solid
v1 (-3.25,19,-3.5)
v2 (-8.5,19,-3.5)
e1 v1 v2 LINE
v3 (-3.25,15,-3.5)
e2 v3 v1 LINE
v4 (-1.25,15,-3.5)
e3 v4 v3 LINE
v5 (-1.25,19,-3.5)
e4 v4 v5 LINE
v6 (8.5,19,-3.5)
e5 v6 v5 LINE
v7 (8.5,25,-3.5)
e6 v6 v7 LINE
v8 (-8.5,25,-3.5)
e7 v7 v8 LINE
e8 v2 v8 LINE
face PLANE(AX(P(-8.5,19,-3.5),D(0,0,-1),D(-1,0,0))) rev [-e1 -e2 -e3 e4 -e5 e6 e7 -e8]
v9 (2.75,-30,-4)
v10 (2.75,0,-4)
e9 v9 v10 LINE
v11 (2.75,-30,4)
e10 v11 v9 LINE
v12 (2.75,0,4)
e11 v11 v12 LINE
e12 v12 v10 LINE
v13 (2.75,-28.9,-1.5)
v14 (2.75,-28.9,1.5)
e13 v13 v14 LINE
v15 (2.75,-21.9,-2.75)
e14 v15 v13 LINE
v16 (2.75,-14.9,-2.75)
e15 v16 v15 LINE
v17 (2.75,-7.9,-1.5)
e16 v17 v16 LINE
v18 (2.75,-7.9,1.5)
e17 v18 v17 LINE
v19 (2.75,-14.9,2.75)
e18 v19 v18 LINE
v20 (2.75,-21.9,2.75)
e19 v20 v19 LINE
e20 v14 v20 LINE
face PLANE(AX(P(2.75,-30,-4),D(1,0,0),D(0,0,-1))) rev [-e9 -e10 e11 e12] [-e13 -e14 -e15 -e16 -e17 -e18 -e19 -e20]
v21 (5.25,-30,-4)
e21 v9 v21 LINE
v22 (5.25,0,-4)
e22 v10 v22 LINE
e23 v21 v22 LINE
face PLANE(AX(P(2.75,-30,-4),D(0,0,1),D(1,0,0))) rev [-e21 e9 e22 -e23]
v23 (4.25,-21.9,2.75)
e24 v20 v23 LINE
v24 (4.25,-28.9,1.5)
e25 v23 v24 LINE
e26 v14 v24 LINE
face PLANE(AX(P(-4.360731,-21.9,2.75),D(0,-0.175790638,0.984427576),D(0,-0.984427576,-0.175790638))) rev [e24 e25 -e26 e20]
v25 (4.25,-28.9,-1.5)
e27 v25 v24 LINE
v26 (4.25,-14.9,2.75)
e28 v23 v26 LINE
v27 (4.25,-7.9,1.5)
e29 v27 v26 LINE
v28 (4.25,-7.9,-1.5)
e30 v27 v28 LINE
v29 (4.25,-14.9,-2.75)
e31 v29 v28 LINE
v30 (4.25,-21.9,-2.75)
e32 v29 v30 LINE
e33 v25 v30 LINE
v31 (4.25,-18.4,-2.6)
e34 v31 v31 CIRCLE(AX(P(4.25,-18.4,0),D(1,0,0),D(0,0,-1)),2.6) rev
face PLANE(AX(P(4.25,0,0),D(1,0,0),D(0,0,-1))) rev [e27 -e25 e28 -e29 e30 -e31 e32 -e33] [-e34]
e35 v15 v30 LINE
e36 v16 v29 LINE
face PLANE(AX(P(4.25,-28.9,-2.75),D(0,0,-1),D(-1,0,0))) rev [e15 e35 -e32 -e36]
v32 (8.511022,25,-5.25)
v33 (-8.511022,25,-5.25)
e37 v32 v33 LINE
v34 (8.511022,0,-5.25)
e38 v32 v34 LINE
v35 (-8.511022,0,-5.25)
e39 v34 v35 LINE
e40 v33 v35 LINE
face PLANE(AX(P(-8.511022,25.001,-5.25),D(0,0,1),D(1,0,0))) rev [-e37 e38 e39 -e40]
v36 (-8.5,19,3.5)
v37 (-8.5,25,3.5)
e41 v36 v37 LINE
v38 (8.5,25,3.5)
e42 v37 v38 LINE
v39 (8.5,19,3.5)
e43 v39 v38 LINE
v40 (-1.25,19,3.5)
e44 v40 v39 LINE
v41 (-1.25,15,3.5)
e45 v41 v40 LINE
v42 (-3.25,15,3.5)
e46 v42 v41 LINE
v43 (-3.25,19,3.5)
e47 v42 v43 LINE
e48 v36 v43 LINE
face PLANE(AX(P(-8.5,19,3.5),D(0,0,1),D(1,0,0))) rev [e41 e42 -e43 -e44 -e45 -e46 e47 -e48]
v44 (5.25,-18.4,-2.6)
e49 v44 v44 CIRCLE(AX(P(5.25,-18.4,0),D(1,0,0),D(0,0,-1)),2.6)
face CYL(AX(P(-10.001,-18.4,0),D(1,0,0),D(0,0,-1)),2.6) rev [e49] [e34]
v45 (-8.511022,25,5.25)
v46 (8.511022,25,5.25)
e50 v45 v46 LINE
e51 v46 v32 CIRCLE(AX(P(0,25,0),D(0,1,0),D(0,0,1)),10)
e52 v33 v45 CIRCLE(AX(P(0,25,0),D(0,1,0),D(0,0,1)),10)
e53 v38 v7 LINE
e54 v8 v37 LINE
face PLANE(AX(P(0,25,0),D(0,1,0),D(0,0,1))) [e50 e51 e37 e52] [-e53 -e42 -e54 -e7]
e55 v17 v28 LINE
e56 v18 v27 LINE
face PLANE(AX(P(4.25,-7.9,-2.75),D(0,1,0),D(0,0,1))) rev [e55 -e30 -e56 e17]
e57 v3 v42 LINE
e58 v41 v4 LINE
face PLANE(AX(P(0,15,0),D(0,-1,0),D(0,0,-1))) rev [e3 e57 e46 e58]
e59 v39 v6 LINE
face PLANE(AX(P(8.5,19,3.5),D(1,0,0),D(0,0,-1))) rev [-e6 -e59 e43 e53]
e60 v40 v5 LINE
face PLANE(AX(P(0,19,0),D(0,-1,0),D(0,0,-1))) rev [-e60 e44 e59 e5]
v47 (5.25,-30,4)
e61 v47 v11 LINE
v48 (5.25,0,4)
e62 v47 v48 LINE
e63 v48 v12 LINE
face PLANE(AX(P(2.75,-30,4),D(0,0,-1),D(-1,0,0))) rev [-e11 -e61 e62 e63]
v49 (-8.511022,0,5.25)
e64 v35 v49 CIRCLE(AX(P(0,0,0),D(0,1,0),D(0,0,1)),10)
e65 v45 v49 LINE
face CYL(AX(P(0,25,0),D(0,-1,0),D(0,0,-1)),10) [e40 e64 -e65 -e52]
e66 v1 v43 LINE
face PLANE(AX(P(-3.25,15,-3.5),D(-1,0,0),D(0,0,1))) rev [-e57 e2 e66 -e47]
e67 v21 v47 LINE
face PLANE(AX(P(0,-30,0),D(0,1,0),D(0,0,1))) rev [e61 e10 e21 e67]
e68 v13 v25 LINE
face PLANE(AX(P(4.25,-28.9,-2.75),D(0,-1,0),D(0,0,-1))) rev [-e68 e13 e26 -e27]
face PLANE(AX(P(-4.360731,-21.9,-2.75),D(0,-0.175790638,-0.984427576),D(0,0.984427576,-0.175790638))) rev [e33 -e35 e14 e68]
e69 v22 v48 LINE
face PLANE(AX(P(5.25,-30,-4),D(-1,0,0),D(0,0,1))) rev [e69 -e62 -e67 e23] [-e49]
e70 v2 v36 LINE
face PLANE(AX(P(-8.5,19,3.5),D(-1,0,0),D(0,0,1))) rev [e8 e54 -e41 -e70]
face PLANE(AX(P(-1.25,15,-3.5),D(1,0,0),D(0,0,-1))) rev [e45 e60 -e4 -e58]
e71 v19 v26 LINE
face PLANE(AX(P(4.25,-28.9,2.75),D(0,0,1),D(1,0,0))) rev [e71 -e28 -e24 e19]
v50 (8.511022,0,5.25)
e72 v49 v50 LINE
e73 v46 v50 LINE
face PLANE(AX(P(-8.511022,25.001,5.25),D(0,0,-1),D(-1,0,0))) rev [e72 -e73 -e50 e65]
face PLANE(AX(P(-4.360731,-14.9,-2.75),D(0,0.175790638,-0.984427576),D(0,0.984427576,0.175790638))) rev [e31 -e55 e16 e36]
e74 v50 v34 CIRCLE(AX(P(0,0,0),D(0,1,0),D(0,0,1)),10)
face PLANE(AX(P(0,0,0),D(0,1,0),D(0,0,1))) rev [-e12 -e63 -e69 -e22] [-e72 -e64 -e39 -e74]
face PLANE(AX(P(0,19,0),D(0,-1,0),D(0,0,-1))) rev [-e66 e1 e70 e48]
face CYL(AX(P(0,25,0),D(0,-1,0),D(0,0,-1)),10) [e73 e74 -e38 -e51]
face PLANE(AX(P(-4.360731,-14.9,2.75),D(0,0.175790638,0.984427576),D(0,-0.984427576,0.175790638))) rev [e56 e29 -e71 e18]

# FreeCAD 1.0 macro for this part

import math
import FreeCAD as App
import Part
import Sketcher
from FreeCAD import Vector
Q = App.Units.Quantity

doc = App.newDocument("Part")
body = doc.addObject("PartDesign::Body", "Body")

# Sketch on XZ plane
sketch1 = body.newObject("Sketcher::SketchObject", "Sketch")
sketch1.AttachmentSupport = (doc.getObject("XZ_Plane"), [""])
sketch1.MapMode = "FlatFace"
sketch1.addGeometry(Part.Circle(Vector(0, 0, 0), Vector(0, 0, 1), 10), False)
sketch1.addConstraint(Sketcher.Constraint("Coincident", 0, 3, -1, 1))
sketch1.addConstraint(Sketcher.Constraint("Diameter", 0, Q("20 mm")))
pad1 = body.newObject("PartDesign::Pad", "Pad")
pad1.Profile = sketch1
pad1.Length = 25
pad1.Reversed = True

# Sketch on XZ plane
sketch2 = body.newObject("Sketcher::SketchObject", "Sketch001")
sketch2.AttachmentSupport = (doc.getObject("XZ_Plane"), [""])
sketch2.MapMode = "FlatFace"
sketch2.addGeometry(Part.LineSegment(Vector(5.2, -4, 0), Vector(5.2, 4, 0)), False)
sketch2.addGeometry(Part.LineSegment(Vector(5.2, 4, 0), Vector(2.8, 4, 0)), False)
sketch2.addGeometry(Part.LineSegment(Vector(2.8, 4, 0), Vector(2.8, -4, 0)), False)
sketch2.addGeometry(Part.LineSegment(Vector(2.8, -4, 0), Vector(5.2, -4, 0)), False)
sketch2.addConstraint(Sketcher.Constraint("Coincident", 0, 2, 1, 1))
sketch2.addConstraint(Sketcher.Constraint("Coincident", 1, 2, 2, 1))
sketch2.addConstraint(Sketcher.Constraint("Coincident", 2, 2, 3, 1))
sketch2.addConstraint(Sketcher.Constraint("Coincident", 3, 2, 0, 1))
sketch2.addConstraint(Sketcher.Constraint("Vertical", 0))
sketch2.addConstraint(Sketcher.Constraint("Horizontal", 1))
sketch2.addConstraint(Sketcher.Constraint("Vertical", 2))
sketch2.addConstraint(Sketcher.Constraint("Horizontal", 3))
sketch2.addConstraint(Sketcher.Constraint("DistanceY", 0, 1, 0, 2, Q("8 mm")))
sketch2.addConstraint(Sketcher.Constraint("DistanceX", 1, 2, 1, 1, Q("2.5 mm")))
sketch2.addConstraint(Sketcher.Constraint("DistanceY", -1, 1, 0, 2, Q("4 mm")))
sketch2.addConstraint(Sketcher.Constraint("DistanceX", -1, 1, 0, 2, Q("5.25 mm")))
pad2 = body.newObject("PartDesign::Pad", "Pad001")
pad2.Profile = sketch2
pad2.Length = 30

# Sketch on YZ plane
sketch3 = body.newObject("Sketcher::SketchObject", "Sketch002")
sketch3.AttachmentSupport = (doc.getObject("YZ_Plane"), [""])
sketch3.MapMode = "FlatFace"
sketch3.AttachmentOffset = App.Placement(Vector(0, 0, 5.25), App.Rotation())
sketch3.addGeometry(Part.Circle(Vector(-18.4, 0, 0), Vector(0, 0, 1), 2.6), False)
sketch3.addConstraint(Sketcher.Constraint("PointOnObject", 0, 3, -1))
sketch3.addConstraint(Sketcher.Constraint("Diameter", 0, Q("5.2 mm")))
sketch3.addConstraint(Sketcher.Constraint("DistanceX", 0, 3, -1, 1, Q("18.4 mm")))
pocket1 = body.newObject("PartDesign::Pocket", "Pocket")
pocket1.Profile = sketch3
pocket1.Type = "UpToFirst"

# Sketch on YZ plane
sketch4 = body.newObject("Sketcher::SketchObject", "Sketch003")
sketch4.AttachmentSupport = (doc.getObject("YZ_Plane"), [""])
sketch4.MapMode = "FlatFace"
sketch4.AttachmentOffset = App.Placement(Vector(0, 0, 2.75), App.Rotation())
sketch4.addGeometry(Part.LineSegment(Vector(-8, -3, 0), Vector(-29, -3, 0)), False)
sketch4.addGeometry(Part.LineSegment(Vector(-29, -3, 0), Vector(-29, 3, 0)), False)
sketch4.addGeometry(Part.LineSegment(Vector(-29, 3, 0), Vector(-8, 3, 0)), False)
sketch4.addGeometry(Part.LineSegment(Vector(-8, 3, 0), Vector(-8, -3, 0)), False)
sketch4.addConstraint(Sketcher.Constraint("Coincident", 0, 2, 1, 1))
sketch4.addConstraint(Sketcher.Constraint("Coincident", 1, 2, 2, 1))
sketch4.addConstraint(Sketcher.Constraint("Coincident", 2, 2, 3, 1))
sketch4.addConstraint(Sketcher.Constraint("Coincident", 3, 2, 0, 1))
sketch4.addConstraint(Sketcher.Constraint("Horizontal", 0))
sketch4.addConstraint(Sketcher.Constraint("Vertical", 1))
sketch4.addConstraint(Sketcher.Constraint("Horizontal", 2))
sketch4.addConstraint(Sketcher.Constraint("Vertical", 3))
sketch4.addConstraint(Sketcher.Constraint("DistanceX", 0, 2, 0, 1, Q("21 mm")))
sketch4.addConstraint(Sketcher.Constraint("DistanceY", 1, 1, 1, 2, Q("5.5 mm")))
sketch4.addConstraint(Sketcher.Constraint("DistanceX", 0, 2, -1, 1, Q("28.9 mm")))
sketch4.addConstraint(Sketcher.Constraint("DistanceY", 0, 2, -1, 1, Q("2.75 mm")))
pocket2 = body.newObject("PartDesign::Pocket", "Pocket001")
pocket2.Profile = sketch4
pocket2.Length = 1.5
pocket2.Reversed = True

# Sketch on XZ plane
sketch5 = body.newObject("Sketcher::SketchObject", "Sketch004")
sketch5.AttachmentSupport = (doc.getObject("XZ_Plane"), [""])
sketch5.MapMode = "FlatFace"
sketch5.AttachmentOffset = App.Placement(Vector(0, 0, -25), App.Rotation())
sketch5.addGeometry(Part.LineSegment(Vector(-8, -4, 0), Vector(-8, 4, 0)), False)
sketch5.addGeometry(Part.LineSegment(Vector(-8, 4, 0), Vector(8, 4, 0)), False)
sketch5.addGeometry(Part.LineSegment(Vector(8, 4, 0), Vector(8, -4, 0)), False)
sketch5.addGeometry(Part.LineSegment(Vector(8, -4, 0), Vector(-8, -4, 0)), False)
sketch5.addConstraint(Sketcher.Constraint("Coincident", 0, 2, 1, 1))
sketch5.addConstraint(Sketcher.Constraint("Coincident", 1, 2, 2, 1))
sketch5.addConstraint(Sketcher.Constraint("Coincident", 2, 2, 3, 1))
sketch5.addConstraint(Sketcher.Constraint("Coincident", 3, 2, 0, 1))
sketch5.addConstraint(Sketcher.Constraint("Vertical", 0))
sketch5.addConstraint(Sketcher.Constraint("Horizontal", 1))
sketch5.addConstraint(Sketcher.Constraint("Vertical", 2))
sketch5.addConstraint(Sketcher.Constraint("Horizontal", 3))
sketch5.addConstraint(Sketcher.Constraint("Symmetric", 0, 2, 2, 2, -1, 1))
sketch5.addConstraint(Sketcher.Constraint("DistanceX", 1, 1, 1, 2, Q("17 mm")))
sketch5.addConstraint(Sketcher.Constraint("DistanceY", 0, 1, 0, 2, Q("7 mm")))
pocket3 = body.newObject("PartDesign::Pocket", "Pocket002")
pocket3.Profile = sketch5
pocket3.Length = 6
pocket3.Reversed = True

# Sketch on XZ plane
sketch6 = body.newObject("Sketcher::SketchObject", "Sketch005")
sketch6.AttachmentSupport = (doc.getObject("XZ_Plane"), [""])
sketch6.MapMode = "FlatFace"
sketch6.AttachmentOffset = App.Placement(Vector(0, 0, -19), App.Rotation())
sketch6.addGeometry(Part.LineSegment(Vector(-3.2, -3.5, 0), Vector(-3.2, 3.5, 0)), False)
sketch6.addGeometry(Part.LineSegment(Vector(-3.2, 3.5, 0), Vector(-1.2, 3.5, 0)), False)
sketch6.addGeometry(Part.LineSegment(Vector(-1.2, 3.5, 0), Vector(-1.2, -3.5, 0)), False)
sketch6.addGeometry(Part.LineSegment(Vector(-1.2, -3.5, 0), Vector(-3.2, -3.5, 0)), False)
sketch6.addConstraint(Sketcher.Constraint("Coincident", 0, 2, 1, 1))
sketch6.addConstraint(Sketcher.Constraint("Coincident", 1, 2, 2, 1))
sketch6.addConstraint(Sketcher.Constraint("Coincident", 2, 2, 3, 1))
sketch6.addConstraint(Sketcher.Constraint("Coincident", 3, 2, 0, 1))
sketch6.addConstraint(Sketcher.Constraint("Vertical", 0))
sketch6.addConstraint(Sketcher.Constraint("Horizontal", 1))
sketch6.addConstraint(Sketcher.Constraint("Vertical", 2))
sketch6.addConstraint(Sketcher.Constraint("Horizontal", 3))
sketch6.addConstraint(Sketcher.Constraint("DistanceX", 1, 1, 1, 2, Q("2 mm")))
sketch6.addConstraint(Sketcher.Constraint("DistanceY", 0, 1, 0, 2, Q("7 mm")))
sketch6.addConstraint(Sketcher.Constraint("DistanceY", -1, 1, 0, 2, Q("3.5 mm")))
sketch6.addConstraint(Sketcher.Constraint("DistanceX", 0, 2, -1, 1, Q("3.25 mm")))
pocket4 = body.newObject("PartDesign::Pocket", "Pocket003")
pocket4.Profile = sketch6
pocket4.Length = 4
pocket4.Reversed = True

# Sketch on YZ plane
sketch7 = body.newObject("Sketcher::SketchObject", "Sketch006")
sketch7.AttachmentSupport = (doc.getObject("YZ_Plane"), [""])
sketch7.MapMode = "FlatFace"
sketch7.AttachmentOffset = App.Placement(Vector(0, 0, 4.25), App.Rotation())
sketch7.addGeometry(Part.LineSegment(Vector(-21.9, -2.8, 0), Vector(-28.9, -2.8, 0)), False)
sketch7.addGeometry(Part.LineSegment(Vector(-28.9, -2.8, 0), Vector(-28.9, -1.5, 0)), False)
sketch7.addGeometry(Part.LineSegment(Vector(-28.9, -1.5, 0), Vector(-21.9, -2.8, 0)), False)
sketch7.addGeometry(Part.LineSegment(Vector(-28.9, 1.5, 0), Vector(-28.9, 2.8, 0)), False)
sketch7.addGeometry(Part.LineSegment(Vector(-28.9, 2.8, 0), Vector(-21.9, 2.8, 0)), False)
sketch7.addGeometry(Part.LineSegment(Vector(-21.9, 2.8, 0), Vector(-28.9, 1.5, 0)), False)
sketch7.addGeometry(Part.LineSegment(Vector(-14.9, 2.8, 0), Vector(-7.9, 2.8, 0)), False)
sketch7.addGeometry(Part.LineSegment(Vector(-7.9, 2.8, 0), Vector(-7.9, 1.5, 0)), False)
sketch7.addGeometry(Part.LineSegment(Vector(-7.9, 1.5, 0), Vector(-14.9, 2.8, 0)), False)
sketch7.addGeometry(Part.LineSegment(Vector(-7.9, -1.5, 0), Vector(-7.9, -2.8, 0)), False)
sketch7.addGeometry(Part.LineSegment(Vector(-7.9, -2.8, 0), Vector(-14.9, -2.8, 0)), False)
sketch7.addGeometry(Part.LineSegment(Vector(-14.9, -2.8, 0), Vector(-7.9, -1.5, 0)), False)
sketch7.addConstraint(Sketcher.Constraint("Coincident", 0, 2, 1, 1))
sketch7.addConstraint(Sketcher.Constraint("Coincident", 1, 2, 2, 1))
sketch7.addConstraint(Sketcher.Constraint("Coincident", 2, 2, 0, 1))
sketch7.addConstraint(Sketcher.Constraint("Coincident", 3, 2, 4, 1))
sketch7.addConstraint(Sketcher.Constraint("Coincident", 4, 2, 5, 1))
sketch7.addConstraint(Sketcher.Constraint("Coincident", 5, 2, 3, 1))
sketch7.addConstraint(Sketcher.Constraint("Coincident", 6, 2, 7, 1))
sketch7.addConstraint(Sketcher.Constraint("Coincident", 7, 2, 8, 1))
sketch7.addConstraint(Sketcher.Constraint("Coincident", 8, 2, 6, 1))
sketch7.addConstraint(Sketcher.Constraint("Coincident", 9, 2, 10, 1))
sketch7.addConstraint(Sketcher.Constraint("Coincident", 10, 2, 11, 1))
sketch7.addConstraint(Sketcher.Constraint("Coincident", 11, 2, 9, 1))
sketch7.addConstraint(Sketcher.Constraint("Horizontal", 0))
sketch7.addConstraint(Sketcher.Constraint("Vertical", 1))
sketch7.addConstraint(Sketcher.Constraint("Vertical", 3))
sketch7.addConstraint(Sketcher.Constraint("Horizontal", 4))
sketch7.addConstraint(Sketcher.Constraint("Horizontal", 6))
sketch7.addConstraint(Sketcher.Constraint("Vertical", 7))
sketch7.addConstraint(Sketcher.Constraint("Vertical", 9))
sketch7.addConstraint(Sketcher.Constraint("Horizontal", 10))
sketch7.addConstraint(Sketcher.Constraint("Symmetric", 0, 2, 3, 2, -1))
sketch7.addConstraint(Sketcher.Constraint("Symmetric", 6, 2, 9, 2, -1))
sketch7.addConstraint(Sketcher.Constraint("Parallel", 2, 8))
sketch7.addConstraint(Sketcher.Constraint("Parallel", 5, 11))
sketch7.addConstraint(Sketcher.Constraint("Horizontal", 4, 2, 6, 2))
sketch7.addConstraint(Sketcher.Constraint("Horizontal", 5, 2, 7, 2))
sketch7.addConstraint(Sketcher.Constraint("Horizontal", 1, 2, 11, 2))
sketch7.addConstraint(Sketcher.Constraint("Vertical", 2, 2, 4, 2))
sketch7.addConstraint(Sketcher.Constraint("Vertical", 8, 2, 10, 2))
sketch7.addConstraint(Sketcher.Constraint("DistanceX", 0, 2, 0, 1, Q("7 mm")))
sketch7.addConstraint(Sketcher.Constraint("DistanceY", 1, 2, 5, 2, Q("3 mm")))
sketch7.addConstraint(Sketcher.Constraint("DistanceX", 4, 2, 6, 2, Q("14 mm")))
sketch7.addConstraint(Sketcher.Constraint("DistanceY", 1, 1, 1, 2, Q("1.25 mm")))
sketch7.addConstraint(Sketcher.Constraint("DistanceX", 0, 2, -1, 1, Q("28.9 mm")))
pad3 = body.newObject("PartDesign::Pad", "Pad002")
pad3.Profile = sketch7
pad3.Length = 1.5
pad3.Reversed = True

# Sketch on XZ plane
sketch8 = body.newObject("Sketcher::SketchObject", "Sketch007")
sketch8.AttachmentSupport = (doc.getObject("XZ_Plane"), [""])
sketch8.MapMode = "FlatFace"
sketch8.addGeometry(Part.LineSegment(Vector(9, -5, 0), Vector(-9, -5, 0)), False)
sketch8.addGeometry(Part.ArcOfCircle(Part.Circle(Vector(0, 0, 0), Vector(0, 0, 1), 10), math.radians(-148), math.radians(-32)), False)
sketch8.addConstraint(Sketcher.Constraint("Coincident", 0, 1, 1, 2))
sketch8.addConstraint(Sketcher.Constraint("Coincident", 1, 1, 0, 2))
sketch8.addConstraint(Sketcher.Constraint("Horizontal", 0))
sketch8.addConstraint(Sketcher.Constraint("Coincident", 1, 3, -1, 1))
sketch8.addConstraint(Sketcher.Constraint("Radius", 1, Q("10 mm")))
sketch8.addConstraint(Sketcher.Constraint("DistanceY", 0, 1, -1, 1, Q("5.25 mm")))
pocket5 = body.newObject("PartDesign::Pocket", "Pocket004")
pocket5.Profile = sketch8
pocket5.Type = "UpToFirst"

# Sketch on XZ plane
sketch9 = body.newObject("Sketcher::SketchObject", "Sketch008")
sketch9.AttachmentSupport = (doc.getObject("XZ_Plane"), [""])
sketch9.MapMode = "FlatFace"
sketch9.addGeometry(Part.LineSegment(Vector(-9, 5, 0), Vector(9, 5, 0)), False)
sketch9.addGeometry(Part.ArcOfCircle(Part.Circle(Vector(0, 0, 0), Vector(0, 0, 1), 10), math.radians(32), math.radians(148)), False)
sketch9.addConstraint(Sketcher.Constraint("Coincident", 0, 1, 1, 2))
sketch9.addConstraint(Sketcher.Constraint("Coincident", 1, 1, 0, 2))
sketch9.addConstraint(Sketcher.Constraint("Horizontal", 0))
sketch9.addConstraint(Sketcher.Constraint("Coincident", 1, 3, -1, 1))
sketch9.addConstraint(Sketcher.Constraint("Radius", 1, Q("10 mm")))
sketch9.addConstraint(Sketcher.Constraint("DistanceY", -1, 1, 0, 1, Q("5.25 mm")))
pocket6 = body.newObject("PartDesign::Pocket", "Pocket005")
pocket6.Profile = sketch9
pocket6.Type = "UpToFirst"

doc.recompute()
